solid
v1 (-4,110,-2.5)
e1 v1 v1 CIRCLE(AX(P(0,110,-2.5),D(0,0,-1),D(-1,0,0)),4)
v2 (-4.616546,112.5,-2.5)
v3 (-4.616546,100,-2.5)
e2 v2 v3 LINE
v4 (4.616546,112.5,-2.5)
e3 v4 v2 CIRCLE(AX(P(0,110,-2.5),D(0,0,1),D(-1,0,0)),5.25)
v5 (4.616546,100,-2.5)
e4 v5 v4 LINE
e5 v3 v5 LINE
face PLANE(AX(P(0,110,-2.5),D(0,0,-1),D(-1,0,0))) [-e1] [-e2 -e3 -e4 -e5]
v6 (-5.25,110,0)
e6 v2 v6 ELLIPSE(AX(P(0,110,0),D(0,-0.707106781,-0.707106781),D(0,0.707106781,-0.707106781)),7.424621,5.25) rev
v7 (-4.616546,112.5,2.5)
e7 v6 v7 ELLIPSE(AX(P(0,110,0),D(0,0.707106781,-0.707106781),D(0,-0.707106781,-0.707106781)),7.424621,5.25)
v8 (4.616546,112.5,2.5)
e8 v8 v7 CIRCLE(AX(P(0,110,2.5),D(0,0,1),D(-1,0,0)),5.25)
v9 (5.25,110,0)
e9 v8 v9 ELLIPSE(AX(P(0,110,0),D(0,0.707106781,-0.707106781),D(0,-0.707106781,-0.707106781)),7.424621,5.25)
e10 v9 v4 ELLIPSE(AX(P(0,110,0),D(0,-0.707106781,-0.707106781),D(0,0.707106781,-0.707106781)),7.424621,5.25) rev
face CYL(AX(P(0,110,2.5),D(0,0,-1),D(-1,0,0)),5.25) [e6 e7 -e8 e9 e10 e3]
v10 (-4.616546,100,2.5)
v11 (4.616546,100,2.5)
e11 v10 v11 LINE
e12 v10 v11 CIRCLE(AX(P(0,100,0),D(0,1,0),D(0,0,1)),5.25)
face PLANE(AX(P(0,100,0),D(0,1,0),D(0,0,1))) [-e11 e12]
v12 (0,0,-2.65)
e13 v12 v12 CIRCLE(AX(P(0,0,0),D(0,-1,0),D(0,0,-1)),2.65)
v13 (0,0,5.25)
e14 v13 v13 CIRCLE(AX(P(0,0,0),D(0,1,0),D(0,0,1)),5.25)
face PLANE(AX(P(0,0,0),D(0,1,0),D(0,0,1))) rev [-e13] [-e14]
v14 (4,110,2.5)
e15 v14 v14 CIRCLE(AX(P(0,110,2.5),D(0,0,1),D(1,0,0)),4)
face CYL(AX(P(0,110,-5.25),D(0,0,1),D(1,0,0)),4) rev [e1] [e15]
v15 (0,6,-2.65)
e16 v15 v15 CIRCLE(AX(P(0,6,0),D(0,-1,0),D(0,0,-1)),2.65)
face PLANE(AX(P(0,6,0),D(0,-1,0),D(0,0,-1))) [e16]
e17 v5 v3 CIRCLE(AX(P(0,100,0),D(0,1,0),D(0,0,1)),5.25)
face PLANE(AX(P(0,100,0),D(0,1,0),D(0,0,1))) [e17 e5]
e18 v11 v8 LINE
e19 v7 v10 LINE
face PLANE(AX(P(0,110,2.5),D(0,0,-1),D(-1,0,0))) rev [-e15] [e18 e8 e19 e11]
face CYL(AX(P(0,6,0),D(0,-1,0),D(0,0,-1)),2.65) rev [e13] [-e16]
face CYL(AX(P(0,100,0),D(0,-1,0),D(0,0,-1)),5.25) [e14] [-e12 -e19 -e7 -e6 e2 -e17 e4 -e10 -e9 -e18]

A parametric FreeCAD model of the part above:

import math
import FreeCAD as App
import Part
import Sketcher
Q = App.Units.Quantity

doc = App.newDocument("Part")
body = doc.addObject("PartDesign::Body", "Body")

# Sketch on XZ plane
sketch1 = doc.addObject("Sketcher::SketchObject", "Sketch")
body.addObject(sketch1)
sketch1.AttachmentSupport = (doc.XZ_Plane, [""])
sketch1.MapMode = "FlatFace"
sketch1.addGeometry(Part.Circle(App.Vector(0, 0, 0), App.Vector(0, 0, 1), 5), False)
sketch1.addConstraint(Sketcher.Constraint("Coincident", 0, 3, -1, 1))
sketch1.addConstraint(Sketcher.Constraint("Diameter", 0, Q("10.5 mm")))
pad1 = doc.addObject("PartDesign::Pad", "Pad")
body.addObject(pad1)
pad1.Profile = sketch1
pad1.Length = 100
pad1.Reversed = True

# Sketch on XY plane
sketch2 = doc.addObject("Sketcher::SketchObject", "Sketch001")
body.addObject(sketch2)
sketch2.AttachmentSupport = (doc.XY_Plane, [""])
sketch2.MapMode = "FlatFace"
sketch2.addGeometry(Part.LineSegment(App.Vector(-5, 110, 0), App.Vector(-5, 100, 0)), False)
sketch2.addGeometry(Part.LineSegment(App.Vector(-5, 100, 0), App.Vector(5, 100, 0)), False)
sketch2.addGeometry(Part.LineSegment(App.Vector(5, 100, 0), App.Vector(5, 110, 0)), False)
sketch2.addGeometry(Part.ArcOfCircle(Part.Circle(App.Vector(0, 110, 0), App.Vector(0, 0, 1), 5), math.radians(0), math.radians(180)), False)
sketch2.addConstraint(Sketcher.Constraint("Coincident", 0, 2, 1, 1))
sketch2.addConstraint(Sketcher.Constraint("Coincident", 1, 2, 2, 1))
sketch2.addConstraint(Sketcher.Constraint("Tangent", 2, 2, 3, 1))
sketch2.addConstraint(Sketcher.Constraint("Tangent", 3, 2, 0, 1))
sketch2.addConstraint(Sketcher.Constraint("Vertical", 0))
sketch2.addConstraint(Sketcher.Constraint("Horizontal", 1))
sketch2.addConstraint(Sketcher.Constraint("Vertical", 2))
sketch2.addConstraint(Sketcher.Constraint("PointOnObject", 3, 3, -2))
sketch2.addConstraint(Sketcher.Constraint("DistanceY", 0, 2, 0, 1, Q("10 mm")))
sketch2.addConstraint(Sketcher.Constraint("Radius", 3, Q("5.25 mm")))
sketch2.addConstraint(Sketcher.Constraint("DistanceY", -1, 1, 3, 3, Q("110 mm")))
pad2 = doc.addObject("PartDesign::Pad", "Pad001")
body.addObject(pad2)
pad2.Profile = sketch2
pad2.Length = 5
pad2.Midplane = True

# Sketch on XZ plane
sketch3 = doc.addObject("Sketcher::SketchObject", "Sketch002")
body.addObject(sketch3)
sketch3.AttachmentSupport = (doc.XZ_Plane, [""])
sketch3.MapMode = "FlatFace"
sketch3.AttachmentOffset = App.Placement(App.Vector(0, 0, -100), App.Rotation())
sketch3.addGeometry(Part.LineSegment(App.Vector(-18, -18, 0), App.Vector(-18, 18, 0)), False)
sketch3.addGeometry(Part.LineSegment(App.Vector(-18, 18, 0), App.Vector(18, 18, 0)), False)
sketch3.addGeometry(Part.LineSegment(App.Vector(18, 18, 0), App.Vector(18, -18, 0)), False)
sketch3.addGeometry(Part.LineSegment(App.Vector(18, -18, 0), App.Vector(-18, -18, 0)), False)
sketch3.addGeometry(Part.Circle(App.Vector(0, 0, 0), App.Vector(0, 0, 1), 5), False)
sketch3.addConstraint(Sketcher.Constraint("Coincident", 0, 2, 1, 1))
sketch3.addConstraint(Sketcher.Constraint("Coincident", 1, 2, 2, 1))
sketch3.addConstraint(Sketcher.Constraint("Coincident", 2, 2, 3, 1))
sketch3.addConstraint(Sketcher.Constraint("Coincident", 3, 2, 0, 1))
sketch3.addConstraint(Sketcher.Constraint("Vertical", 0))
sketch3.addConstraint(Sketcher.Constraint("Horizontal", 1))
sketch3.addConstraint(Sketcher.Constraint("Vertical", 2))
sketch3.addConstraint(Sketcher.Constraint("Horizontal", 3))
sketch3.addConstraint(Sketcher.Constraint("Coincident", 4, 3, -1, 1))
sketch3.addConstraint(Sketcher.Constraint("Symmetric", 0, 2, 2, 2, -1, 1))
sketch3.addConstraint(Sketcher.Constraint("Equal", 3, 0))
sketch3.addConstraint(Sketcher.Constraint("Diameter", 4, Q("10.5 mm")))
sketch3.addConstraint(Sketcher.Constraint("DistanceX", 1, 1, 1, 2, Q("35.74 mm")))
pocket1 = doc.addObject("PartDesign::Pocket", "Pocket")
body.addObject(pocket1)
pocket1.Profile = sketch3
pocket1.Type = "ThroughAll"

# Sketch on XY plane
sketch4 = doc.addObject("Sketcher::SketchObject", "Sketch003")
body.addObject(sketch4)
sketch4.AttachmentSupport = (doc.XY_Plane, [""])
sketch4.MapMode = "FlatFace"
sketch4.AttachmentOffset = App.Placement(App.Vector(0, 0, 2.5), App.Rotation())
sketch4.addGeometry(Part.Circle(App.Vector(0, 110, 0), App.Vector(0, 0, 1), 4), False)
sketch4.addConstraint(Sketcher.Constraint("PointOnObject", 0, 3, -2))
sketch4.addConstraint(Sketcher.Constraint("Diameter", 0, Q("8 mm")))
sketch4.addConstraint(Sketcher.Constraint("DistanceY", -1, 1, 0, 3, Q("110 mm")))
pocket2 = doc.addObject("PartDesign::Pocket", "Pocket001")
body.addObject(pocket2)
pocket2.Profile = sketch4
pocket2.Type = "ThroughAll"

# Sketch on XZ plane
sketch5 = doc.addObject("Sketcher::SketchObject", "Sketch004")
body.addObject(sketch5)
sketch5.AttachmentSupport = (doc.XZ_Plane, [""])
sketch5.MapMode = "FlatFace"
sketch5.addGeometry(Part.Circle(App.Vector(0, 0, 0), App.Vector(0, 0, 1), 2.6), False)
sketch5.addConstraint(Sketcher.Constraint("Coincident", 0, 3, -1, 1))
sketch5.addConstraint(Sketcher.Constraint("Diameter", 0, Q("5.3 mm")))
pocket3 = doc.addObject("PartDesign::Pocket", "Pocket002")
body.addObject(pocket3)
pocket3.Profile = sketch5
pocket3.Length = 6

doc.recompute()
